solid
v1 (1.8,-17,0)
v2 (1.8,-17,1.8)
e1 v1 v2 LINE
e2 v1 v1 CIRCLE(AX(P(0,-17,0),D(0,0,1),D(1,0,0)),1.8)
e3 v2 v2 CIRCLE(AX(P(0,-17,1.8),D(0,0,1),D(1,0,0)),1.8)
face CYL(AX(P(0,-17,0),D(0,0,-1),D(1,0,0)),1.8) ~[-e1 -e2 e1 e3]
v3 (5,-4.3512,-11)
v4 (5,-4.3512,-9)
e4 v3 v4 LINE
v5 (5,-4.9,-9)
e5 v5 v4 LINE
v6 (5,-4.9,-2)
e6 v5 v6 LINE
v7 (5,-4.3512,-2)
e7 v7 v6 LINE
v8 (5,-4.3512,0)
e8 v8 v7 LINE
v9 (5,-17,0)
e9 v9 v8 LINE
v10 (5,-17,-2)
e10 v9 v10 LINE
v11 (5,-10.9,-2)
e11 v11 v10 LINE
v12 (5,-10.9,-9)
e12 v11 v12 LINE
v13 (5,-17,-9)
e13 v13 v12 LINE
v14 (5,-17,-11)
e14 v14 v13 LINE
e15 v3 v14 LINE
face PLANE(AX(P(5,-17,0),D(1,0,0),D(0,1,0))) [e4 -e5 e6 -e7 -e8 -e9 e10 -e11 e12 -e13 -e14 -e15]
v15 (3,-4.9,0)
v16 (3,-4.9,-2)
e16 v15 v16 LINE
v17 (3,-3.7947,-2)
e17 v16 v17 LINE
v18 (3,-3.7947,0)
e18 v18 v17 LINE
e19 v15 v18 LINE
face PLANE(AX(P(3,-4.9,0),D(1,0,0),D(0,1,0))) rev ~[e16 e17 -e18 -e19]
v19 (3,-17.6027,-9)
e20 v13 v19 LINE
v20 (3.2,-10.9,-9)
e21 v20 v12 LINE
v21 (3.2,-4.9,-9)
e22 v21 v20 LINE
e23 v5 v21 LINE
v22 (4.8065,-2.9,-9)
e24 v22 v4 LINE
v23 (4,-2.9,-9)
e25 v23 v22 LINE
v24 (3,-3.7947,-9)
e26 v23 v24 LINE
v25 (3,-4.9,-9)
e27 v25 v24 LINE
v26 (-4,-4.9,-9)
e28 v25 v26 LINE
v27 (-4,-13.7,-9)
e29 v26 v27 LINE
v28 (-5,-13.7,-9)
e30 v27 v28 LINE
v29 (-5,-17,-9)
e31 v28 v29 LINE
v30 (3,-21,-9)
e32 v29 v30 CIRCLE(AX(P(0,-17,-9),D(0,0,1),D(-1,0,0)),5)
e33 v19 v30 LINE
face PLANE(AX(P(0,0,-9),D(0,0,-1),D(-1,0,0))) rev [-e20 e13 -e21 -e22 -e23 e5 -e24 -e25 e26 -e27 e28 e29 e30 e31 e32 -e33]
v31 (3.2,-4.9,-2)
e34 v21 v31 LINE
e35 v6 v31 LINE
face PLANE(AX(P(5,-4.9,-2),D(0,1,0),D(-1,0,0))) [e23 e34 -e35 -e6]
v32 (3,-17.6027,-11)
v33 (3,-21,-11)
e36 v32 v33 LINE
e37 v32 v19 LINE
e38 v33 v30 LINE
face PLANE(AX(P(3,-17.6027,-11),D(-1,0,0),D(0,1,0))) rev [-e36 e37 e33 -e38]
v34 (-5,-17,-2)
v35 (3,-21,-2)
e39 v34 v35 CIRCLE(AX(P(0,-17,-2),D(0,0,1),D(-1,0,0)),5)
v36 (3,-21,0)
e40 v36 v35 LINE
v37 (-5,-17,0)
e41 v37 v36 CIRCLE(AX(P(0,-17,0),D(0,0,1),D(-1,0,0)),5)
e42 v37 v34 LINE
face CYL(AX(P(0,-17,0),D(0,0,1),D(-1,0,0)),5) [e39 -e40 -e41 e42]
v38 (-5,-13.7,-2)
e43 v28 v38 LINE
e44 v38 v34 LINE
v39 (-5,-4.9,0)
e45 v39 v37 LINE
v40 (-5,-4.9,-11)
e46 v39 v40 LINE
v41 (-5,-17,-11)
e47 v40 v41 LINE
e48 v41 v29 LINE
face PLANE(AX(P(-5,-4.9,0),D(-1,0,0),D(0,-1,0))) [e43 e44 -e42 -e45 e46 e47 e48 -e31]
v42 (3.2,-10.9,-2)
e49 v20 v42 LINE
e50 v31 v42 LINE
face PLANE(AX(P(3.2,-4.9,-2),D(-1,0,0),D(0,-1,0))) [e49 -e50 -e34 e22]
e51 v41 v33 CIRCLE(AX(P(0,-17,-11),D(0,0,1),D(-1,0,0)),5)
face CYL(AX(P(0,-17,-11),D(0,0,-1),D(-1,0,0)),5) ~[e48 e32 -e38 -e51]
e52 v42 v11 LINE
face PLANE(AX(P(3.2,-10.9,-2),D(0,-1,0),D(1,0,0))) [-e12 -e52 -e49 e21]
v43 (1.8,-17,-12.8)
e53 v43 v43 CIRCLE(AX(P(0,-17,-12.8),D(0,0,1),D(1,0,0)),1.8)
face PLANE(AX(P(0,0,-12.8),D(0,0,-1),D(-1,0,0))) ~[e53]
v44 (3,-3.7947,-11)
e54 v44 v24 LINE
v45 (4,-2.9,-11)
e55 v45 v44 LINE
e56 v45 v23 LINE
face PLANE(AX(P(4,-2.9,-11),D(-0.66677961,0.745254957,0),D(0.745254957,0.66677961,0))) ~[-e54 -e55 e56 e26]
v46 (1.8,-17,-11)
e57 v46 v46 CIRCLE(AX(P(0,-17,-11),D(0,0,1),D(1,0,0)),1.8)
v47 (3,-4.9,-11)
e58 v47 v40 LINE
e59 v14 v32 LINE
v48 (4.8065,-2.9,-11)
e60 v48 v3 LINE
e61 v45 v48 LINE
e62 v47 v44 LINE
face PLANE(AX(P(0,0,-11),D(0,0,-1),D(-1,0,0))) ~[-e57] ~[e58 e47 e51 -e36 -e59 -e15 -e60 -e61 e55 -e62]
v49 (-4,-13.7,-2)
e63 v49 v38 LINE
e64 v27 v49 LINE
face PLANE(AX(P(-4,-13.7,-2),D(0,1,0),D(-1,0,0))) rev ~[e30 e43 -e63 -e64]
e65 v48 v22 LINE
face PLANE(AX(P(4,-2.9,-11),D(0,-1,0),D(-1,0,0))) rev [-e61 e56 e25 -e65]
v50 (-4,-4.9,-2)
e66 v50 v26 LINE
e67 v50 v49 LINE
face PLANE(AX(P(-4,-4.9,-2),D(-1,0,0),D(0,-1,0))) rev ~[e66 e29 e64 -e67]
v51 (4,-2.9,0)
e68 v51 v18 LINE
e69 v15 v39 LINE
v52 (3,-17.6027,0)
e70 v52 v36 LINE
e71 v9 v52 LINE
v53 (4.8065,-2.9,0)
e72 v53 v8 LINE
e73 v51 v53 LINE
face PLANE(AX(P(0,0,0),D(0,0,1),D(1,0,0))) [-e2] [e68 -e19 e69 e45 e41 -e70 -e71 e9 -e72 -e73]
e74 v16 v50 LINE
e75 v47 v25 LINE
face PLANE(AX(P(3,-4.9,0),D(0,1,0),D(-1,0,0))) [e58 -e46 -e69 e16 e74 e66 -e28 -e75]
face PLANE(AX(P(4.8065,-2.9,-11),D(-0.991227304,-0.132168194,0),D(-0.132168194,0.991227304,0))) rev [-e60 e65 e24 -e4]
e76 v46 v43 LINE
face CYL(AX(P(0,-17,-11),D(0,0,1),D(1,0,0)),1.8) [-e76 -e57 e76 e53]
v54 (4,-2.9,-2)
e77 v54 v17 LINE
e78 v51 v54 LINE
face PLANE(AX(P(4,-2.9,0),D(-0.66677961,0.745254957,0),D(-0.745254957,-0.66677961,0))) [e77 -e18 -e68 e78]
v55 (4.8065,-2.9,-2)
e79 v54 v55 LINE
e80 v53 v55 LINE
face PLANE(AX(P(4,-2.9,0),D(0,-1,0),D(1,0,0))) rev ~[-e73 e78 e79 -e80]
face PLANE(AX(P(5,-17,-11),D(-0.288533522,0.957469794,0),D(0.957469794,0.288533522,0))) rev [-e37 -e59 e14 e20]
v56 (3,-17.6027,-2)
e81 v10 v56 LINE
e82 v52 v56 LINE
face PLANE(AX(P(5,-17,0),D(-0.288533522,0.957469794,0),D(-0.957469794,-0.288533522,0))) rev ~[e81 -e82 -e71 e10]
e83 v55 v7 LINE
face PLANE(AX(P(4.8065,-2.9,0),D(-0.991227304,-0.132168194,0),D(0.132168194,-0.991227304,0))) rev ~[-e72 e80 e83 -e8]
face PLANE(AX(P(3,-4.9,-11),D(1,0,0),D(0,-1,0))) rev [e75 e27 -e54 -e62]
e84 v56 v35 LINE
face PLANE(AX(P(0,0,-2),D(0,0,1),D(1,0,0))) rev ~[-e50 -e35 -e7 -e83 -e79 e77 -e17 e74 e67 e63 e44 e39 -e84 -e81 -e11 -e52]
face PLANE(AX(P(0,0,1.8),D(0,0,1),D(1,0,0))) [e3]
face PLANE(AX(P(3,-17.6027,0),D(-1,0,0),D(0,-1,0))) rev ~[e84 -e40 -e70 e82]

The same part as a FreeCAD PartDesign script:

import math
import FreeCAD as App
import Part
import Sketcher
Q = App.Units.Quantity


def add_polygon(sketch, points):
    """Adds a closed chain of lines whose ends are joined by coincident constraints."""
    first, n = sketch.GeometryCount, len(points)
    for a, b in zip(points, points[1:] + points[:1]):
        sketch.addGeometry(Part.LineSegment(App.Vector(*a, 0), App.Vector(*b, 0)), False)
    for i in range(n):
        sketch.addConstraint(Sketcher.Constraint("Coincident", first + i, 2, first + (i + 1) % n, 1))

doc = App.newDocument("Part")
body = doc.addObject("PartDesign::Body", "Body")

# Sketch on XY plane
sketch1 = body.newObject("Sketcher::SketchObject", "Sketch")
sketch1.AttachmentSupport = (doc.getObject("XY_Plane"), [""])
sketch1.MapMode = "FlatFace"
sketch1.addGeometry([
    Part.LineSegment(App.Vector(-5, -4.9, 0), App.Vector(-5, -17, 0)),  # 0
    Part.ArcOfCircle(Part.Circle(App.Vector(0, -17, 0), App.Vector(0, 0, 1), 5), math.radians(180), math.radians(307)),  # 1
    Part.LineSegment(App.Vector(3, -21, 0), App.Vector(3, -17.6, 0)),  # 2
    Part.LineSegment(App.Vector(3, -17.6, 0), App.Vector(5, -17, 0)),  # 3
    Part.LineSegment(App.Vector(5, -17, 0), App.Vector(5, -4.4, 0)),  # 4
    Part.LineSegment(App.Vector(5, -4.4, 0), App.Vector(4.8, -2.9, 0)),  # 5
    Part.LineSegment(App.Vector(4.8, -2.9, 0), App.Vector(4, -2.9, 0)),  # 6
    Part.LineSegment(App.Vector(4, -2.9, 0), App.Vector(3, -3.8, 0)),  # 7
    Part.LineSegment(App.Vector(3, -3.8, 0), App.Vector(3, -4.9, 0)),  # 8
    Part.LineSegment(App.Vector(3, -4.9, 0), App.Vector(-5, -4.9, 0)),  # 9
], False)
sketch1.addConstraint([
    Sketcher.Constraint("Tangent", 0, 2, 1, 1),
    Sketcher.Constraint("Coincident", 1, 2, 2, 1),
    Sketcher.Constraint("Coincident", 2, 2, 3, 1),
    Sketcher.Constraint("Coincident", 3, 2, 4, 1),
    Sketcher.Constraint("Coincident", 4, 2, 5, 1),
    Sketcher.Constraint("Coincident", 5, 2, 6, 1),
    Sketcher.Constraint("Coincident", 6, 2, 7, 1),
    Sketcher.Constraint("Coincident", 7, 2, 8, 1),
    Sketcher.Constraint("Coincident", 8, 2, 9, 1),
    Sketcher.Constraint("Coincident", 9, 2, 0, 1),
    Sketcher.Constraint("Vertical", 0),
    Sketcher.Constraint("Vertical", 2),
    Sketcher.Constraint("Vertical", 4),
    Sketcher.Constraint("Horizontal", 6),
    Sketcher.Constraint("Vertical", 8),
    Sketcher.Constraint("Horizontal", 9),
    Sketcher.Constraint("Symmetric", 0, 2, 3, 2, -2),
    Sketcher.Constraint("PointOnObject", 1, 3, -2),
    Sketcher.Constraint("Vertical", 2, 2, 7, 2),
    Sketcher.Constraint("DistanceX", -1, 1, 1, 2, Q("3 mm")),
    Sketcher.Constraint("Radius", 1, Q("5 mm")),
    Sketcher.Constraint("DistanceY", 0, 2, 0, 1, Q("12.1 mm")),
    Sketcher.Constraint("DistanceY", 1, 3, -1, 1, Q("17 mm")),
    Sketcher.Constraint("DistanceX", -1, 1, 6, 2, Q("4 mm")),
    Sketcher.Constraint("DistanceY", 8, 2, 6, 2, Q("2 mm")),
    Sketcher.Constraint("Angle", 3, Q("16.7702 deg")),
    Sketcher.Constraint("Angle", 7, Q("-138.181 deg")),
    Sketcher.Constraint("Distance", 5, Q("1.464 mm")),
    Sketcher.Constraint("DistanceX", 6, 2, 6, 1, Q("0.8065 mm")),
])
pad1 = body.newObject("PartDesign::Pad", "Pad")
pad1.Profile = sketch1
pad1.Length = 2
pad1.Reversed = True

# Sketch on XY plane
sketch2 = body.newObject("Sketcher::SketchObject", "Sketch001")
sketch2.AttachmentSupport = (doc.getObject("XY_Plane"), [""])
sketch2.MapMode = "FlatFace"
sketch2.addGeometry(Part.Circle(App.Vector(0, -17, 0), App.Vector(0, 0, 1), 1.8), False)
sketch2.addConstraint([
    Sketcher.Constraint("PointOnObject", 0, 3, -2),
    Sketcher.Constraint("Diameter", 0, Q("3.6 mm")),
    Sketcher.Constraint("DistanceY", 0, 3, -1, 1, Q("17 mm")),
])
pad2 = body.newObject("PartDesign::Pad", "Pad001")
pad2.Profile = sketch2
pad2.Length = 1.8

# Sketch on XY plane
sketch3 = body.newObject("Sketcher::SketchObject", "Sketch002")
sketch3.AttachmentSupport = (doc.getObject("XY_Plane"), [""])
sketch3.MapMode = "FlatFace"
sketch3.AttachmentOffset = App.Placement(App.Vector(0, 0, -2), App.Rotation())
add_polygon(sketch3, [(3.2, -4.9), (5, -4.9), (5, -10.9), (3.2, -10.9)])  # lines 0-3
add_polygon(sketch3, [(-5, -13.7), (-5, -4.9), (-4, -4.9), (-4, -13.7)])  # lines 4-7
sketch3.addConstraint([
    Sketcher.Constraint("Horizontal", 0),
    Sketcher.Constraint("Vertical", 1),
    Sketcher.Constraint("Horizontal", 2),
    Sketcher.Constraint("Vertical", 3),
    Sketcher.Constraint("Vertical", 4),
    Sketcher.Constraint("Horizontal", 5),
    Sketcher.Constraint("Vertical", 6),
    Sketcher.Constraint("Horizontal", 7),
    Sketcher.Constraint("Symmetric", 0, 2, 4, 2, -2),
    Sketcher.Constraint("DistanceX", 5, 1, 5, 2, Q("1 mm")),
    Sketcher.Constraint("DistanceY", 1, 2, 1, 1, Q("6 mm")),
    Sketcher.Constraint("DistanceX", 0, 1, 0, 2, Q("1.8 mm")),
    Sketcher.Constraint("DistanceY", 4, 1, 4, 2, Q("8.8 mm")),
    Sketcher.Constraint("DistanceX", -1, 1, 0, 2, Q("5 mm")),
    Sketcher.Constraint("DistanceY", 0, 2, -1, 1, Q("4.9 mm")),
])
pad3 = body.newObject("PartDesign::Pad", "Pad002")
pad3.Profile = sketch3
pad3.Length = 3.5
pad3.Reversed = True
doc.recompute()

datumplane = body.newObject("PartDesign::Plane", "DatumPlane")
datumplane.AttachmentSupport = (doc.getObject("XY_Plane"), [""])
datumplane.MapMode = "FlatFace"
datumplane.AttachmentOffset = App.Placement(App.Vector(0, 0, -5.5), App.Rotation())
mirrored = body.newObject("PartDesign::Mirrored", "Mirrored")
mirrored.Originals = [pad2, pad1, pad3]
mirrored.MirrorPlane = (datumplane, [""])
body.Tip = mirrored

doc.recompute()
